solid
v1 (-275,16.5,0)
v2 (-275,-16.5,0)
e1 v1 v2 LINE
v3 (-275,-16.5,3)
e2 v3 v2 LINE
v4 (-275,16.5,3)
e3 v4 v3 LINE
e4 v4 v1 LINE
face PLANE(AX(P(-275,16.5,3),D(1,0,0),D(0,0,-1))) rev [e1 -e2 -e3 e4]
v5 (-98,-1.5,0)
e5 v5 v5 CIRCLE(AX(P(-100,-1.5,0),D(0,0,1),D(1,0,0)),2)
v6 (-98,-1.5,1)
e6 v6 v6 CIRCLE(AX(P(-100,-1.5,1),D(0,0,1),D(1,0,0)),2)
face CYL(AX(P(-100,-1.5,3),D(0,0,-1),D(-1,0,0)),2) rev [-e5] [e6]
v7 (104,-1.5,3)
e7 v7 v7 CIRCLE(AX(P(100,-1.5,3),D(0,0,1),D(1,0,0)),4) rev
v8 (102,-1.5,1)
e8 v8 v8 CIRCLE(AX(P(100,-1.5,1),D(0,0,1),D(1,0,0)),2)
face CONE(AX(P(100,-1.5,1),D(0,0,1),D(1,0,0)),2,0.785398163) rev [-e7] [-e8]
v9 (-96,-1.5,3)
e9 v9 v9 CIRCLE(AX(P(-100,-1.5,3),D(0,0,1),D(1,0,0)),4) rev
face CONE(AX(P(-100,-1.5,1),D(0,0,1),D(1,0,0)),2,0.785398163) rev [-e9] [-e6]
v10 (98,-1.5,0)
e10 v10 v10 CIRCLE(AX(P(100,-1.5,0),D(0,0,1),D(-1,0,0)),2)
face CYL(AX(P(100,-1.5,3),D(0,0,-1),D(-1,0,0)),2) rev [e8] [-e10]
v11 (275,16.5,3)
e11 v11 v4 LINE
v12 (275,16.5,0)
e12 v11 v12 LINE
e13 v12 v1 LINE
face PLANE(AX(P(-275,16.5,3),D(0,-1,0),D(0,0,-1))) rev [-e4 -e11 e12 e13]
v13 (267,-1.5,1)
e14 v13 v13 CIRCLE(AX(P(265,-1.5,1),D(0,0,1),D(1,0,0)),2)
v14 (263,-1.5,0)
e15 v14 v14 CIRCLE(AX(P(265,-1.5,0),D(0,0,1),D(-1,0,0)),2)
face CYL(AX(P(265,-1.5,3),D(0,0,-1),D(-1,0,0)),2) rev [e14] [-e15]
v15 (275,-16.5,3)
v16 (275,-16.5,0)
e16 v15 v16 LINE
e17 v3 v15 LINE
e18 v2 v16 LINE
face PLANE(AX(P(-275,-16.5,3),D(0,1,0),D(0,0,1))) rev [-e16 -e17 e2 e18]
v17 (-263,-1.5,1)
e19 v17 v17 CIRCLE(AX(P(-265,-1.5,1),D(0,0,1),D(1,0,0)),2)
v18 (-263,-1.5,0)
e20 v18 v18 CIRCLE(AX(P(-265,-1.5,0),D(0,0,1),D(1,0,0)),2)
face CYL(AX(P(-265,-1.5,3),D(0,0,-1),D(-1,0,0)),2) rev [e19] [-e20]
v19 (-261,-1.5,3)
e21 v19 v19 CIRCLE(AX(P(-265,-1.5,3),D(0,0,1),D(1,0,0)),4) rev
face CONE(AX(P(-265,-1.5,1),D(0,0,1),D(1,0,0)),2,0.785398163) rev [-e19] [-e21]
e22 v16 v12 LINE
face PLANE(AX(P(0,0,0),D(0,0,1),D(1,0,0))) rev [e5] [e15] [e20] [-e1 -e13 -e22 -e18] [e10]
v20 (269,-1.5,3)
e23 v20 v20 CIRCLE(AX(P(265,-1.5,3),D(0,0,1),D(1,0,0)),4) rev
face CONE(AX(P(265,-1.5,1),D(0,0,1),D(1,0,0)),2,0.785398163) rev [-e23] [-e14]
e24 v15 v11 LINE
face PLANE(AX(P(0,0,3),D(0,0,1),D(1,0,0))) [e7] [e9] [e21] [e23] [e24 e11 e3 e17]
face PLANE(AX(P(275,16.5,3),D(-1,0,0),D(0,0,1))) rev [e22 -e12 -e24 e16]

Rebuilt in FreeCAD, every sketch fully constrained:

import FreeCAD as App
import Part
import Sketcher
Q = App.Units.Quantity


def edges_at(feature, points):
    """Names of the edges that pass closest to the given points."""
    edges = feature.Shape.Edges
    near = lambda p: min(range(len(edges)), key=lambda i: edges[i].distToShape(Part.Vertex(*p))[0])
    return sorted({f"Edge{near(p) + 1}" for p in points})

doc = App.newDocument("Part")
body = doc.addObject("PartDesign::Body", "Body")

# Sketch on XY plane
sketch1 = body.newObject("Sketcher::SketchObject", "Sketch")
sketch1.AttachmentSupport = (doc.getObject("XY_Plane"), [""])
sketch1.MapMode = "FlatFace"
sketch1.addGeometry(Part.LineSegment(App.Vector(-275, 16, 0), App.Vector(-275, -16, 0)), False)
sketch1.addGeometry(Part.LineSegment(App.Vector(-275, -16, 0), App.Vector(275, -16, 0)), False)
sketch1.addGeometry(Part.LineSegment(App.Vector(275, -16, 0), App.Vector(275, 16, 0)), False)
sketch1.addGeometry(Part.LineSegment(App.Vector(275, 16, 0), App.Vector(-275, 16, 0)), False)
sketch1.addConstraint(Sketcher.Constraint("Coincident", 0, 2, 1, 1))
sketch1.addConstraint(Sketcher.Constraint("Coincident", 1, 2, 2, 1))
sketch1.addConstraint(Sketcher.Constraint("Coincident", 2, 2, 3, 1))
sketch1.addConstraint(Sketcher.Constraint("Coincident", 3, 2, 0, 1))
sketch1.addConstraint(Sketcher.Constraint("Vertical", 0))
sketch1.addConstraint(Sketcher.Constraint("Horizontal", 1))
sketch1.addConstraint(Sketcher.Constraint("Vertical", 2))
sketch1.addConstraint(Sketcher.Constraint("Horizontal", 3))
sketch1.addConstraint(Sketcher.Constraint("Symmetric", 0, 2, 2, 2, -1, 1))
sketch1.addConstraint(Sketcher.Constraint("DistanceX", 1, 1, 1, 2, Q("550 mm")))
sketch1.addConstraint(Sketcher.Constraint("DistanceY", 0, 2, 0, 1, Q("33 mm")))
pad1 = body.newObject("PartDesign::Pad", "Pad")
pad1.Profile = sketch1
pad1.Length = 3

# Sketch on XY plane
sketch2 = body.newObject("Sketcher::SketchObject", "Sketch001")
sketch2.AttachmentSupport = (doc.getObject("XY_Plane"), [""])
sketch2.MapMode = "FlatFace"
sketch2.addGeometry(Part.Circle(App.Vector(-265, -1.5, 0), App.Vector(0, 0, 1), 2), False)
sketch2.addGeometry(Part.Circle(App.Vector(-100, -1.5, 0), App.Vector(0, 0, 1), 2), False)
sketch2.addGeometry(Part.Circle(App.Vector(100, -1.5, 0), App.Vector(0, 0, 1), 2), False)
sketch2.addGeometry(Part.Circle(App.Vector(265, -1.5, 0), App.Vector(0, 0, 1), 2), False)
sketch2.addConstraint(Sketcher.Constraint("Equal", 0, 1))
sketch2.addConstraint(Sketcher.Constraint("Equal", 1, 2))
sketch2.addConstraint(Sketcher.Constraint("Equal", 2, 3))
sketch2.addConstraint(Sketcher.Constraint("Symmetric", 1, 3, 2, 3, -2))
sketch2.addConstraint(Sketcher.Constraint("Symmetric", 0, 3, 3, 3, -2))
sketch2.addConstraint(Sketcher.Constraint("Horizontal", 0, 3, 1, 3))
sketch2.addConstraint(Sketcher.Constraint("Diameter", 0, Q("4 mm")))
sketch2.addConstraint(Sketcher.Constraint("DistanceX", 0, 3, -1, 1, Q("265 mm")))
sketch2.addConstraint(Sketcher.Constraint("DistanceX", 1, 3, -1, 1, Q("100 mm")))
sketch2.addConstraint(Sketcher.Constraint("DistanceY", 0, 3, -1, 1, Q("1.5 mm")))
pocket1 = body.newObject("PartDesign::Pocket", "Pocket")
pocket1.Profile = sketch2
pocket1.Type = "ThroughAll"
pocket1.Reversed = True
doc.recompute()

chamfer = body.newObject("PartDesign::Chamfer", "Chamfer")
chamfer.Base = (pocket1, edges_at(pocket1, [
    (-267, -1.5, 3),
    (-102, -1.5, 3),
    (102, -1.5, 3),
    (267, -1.5, 3),
]))
chamfer.Size = 2

doc.recompute()
